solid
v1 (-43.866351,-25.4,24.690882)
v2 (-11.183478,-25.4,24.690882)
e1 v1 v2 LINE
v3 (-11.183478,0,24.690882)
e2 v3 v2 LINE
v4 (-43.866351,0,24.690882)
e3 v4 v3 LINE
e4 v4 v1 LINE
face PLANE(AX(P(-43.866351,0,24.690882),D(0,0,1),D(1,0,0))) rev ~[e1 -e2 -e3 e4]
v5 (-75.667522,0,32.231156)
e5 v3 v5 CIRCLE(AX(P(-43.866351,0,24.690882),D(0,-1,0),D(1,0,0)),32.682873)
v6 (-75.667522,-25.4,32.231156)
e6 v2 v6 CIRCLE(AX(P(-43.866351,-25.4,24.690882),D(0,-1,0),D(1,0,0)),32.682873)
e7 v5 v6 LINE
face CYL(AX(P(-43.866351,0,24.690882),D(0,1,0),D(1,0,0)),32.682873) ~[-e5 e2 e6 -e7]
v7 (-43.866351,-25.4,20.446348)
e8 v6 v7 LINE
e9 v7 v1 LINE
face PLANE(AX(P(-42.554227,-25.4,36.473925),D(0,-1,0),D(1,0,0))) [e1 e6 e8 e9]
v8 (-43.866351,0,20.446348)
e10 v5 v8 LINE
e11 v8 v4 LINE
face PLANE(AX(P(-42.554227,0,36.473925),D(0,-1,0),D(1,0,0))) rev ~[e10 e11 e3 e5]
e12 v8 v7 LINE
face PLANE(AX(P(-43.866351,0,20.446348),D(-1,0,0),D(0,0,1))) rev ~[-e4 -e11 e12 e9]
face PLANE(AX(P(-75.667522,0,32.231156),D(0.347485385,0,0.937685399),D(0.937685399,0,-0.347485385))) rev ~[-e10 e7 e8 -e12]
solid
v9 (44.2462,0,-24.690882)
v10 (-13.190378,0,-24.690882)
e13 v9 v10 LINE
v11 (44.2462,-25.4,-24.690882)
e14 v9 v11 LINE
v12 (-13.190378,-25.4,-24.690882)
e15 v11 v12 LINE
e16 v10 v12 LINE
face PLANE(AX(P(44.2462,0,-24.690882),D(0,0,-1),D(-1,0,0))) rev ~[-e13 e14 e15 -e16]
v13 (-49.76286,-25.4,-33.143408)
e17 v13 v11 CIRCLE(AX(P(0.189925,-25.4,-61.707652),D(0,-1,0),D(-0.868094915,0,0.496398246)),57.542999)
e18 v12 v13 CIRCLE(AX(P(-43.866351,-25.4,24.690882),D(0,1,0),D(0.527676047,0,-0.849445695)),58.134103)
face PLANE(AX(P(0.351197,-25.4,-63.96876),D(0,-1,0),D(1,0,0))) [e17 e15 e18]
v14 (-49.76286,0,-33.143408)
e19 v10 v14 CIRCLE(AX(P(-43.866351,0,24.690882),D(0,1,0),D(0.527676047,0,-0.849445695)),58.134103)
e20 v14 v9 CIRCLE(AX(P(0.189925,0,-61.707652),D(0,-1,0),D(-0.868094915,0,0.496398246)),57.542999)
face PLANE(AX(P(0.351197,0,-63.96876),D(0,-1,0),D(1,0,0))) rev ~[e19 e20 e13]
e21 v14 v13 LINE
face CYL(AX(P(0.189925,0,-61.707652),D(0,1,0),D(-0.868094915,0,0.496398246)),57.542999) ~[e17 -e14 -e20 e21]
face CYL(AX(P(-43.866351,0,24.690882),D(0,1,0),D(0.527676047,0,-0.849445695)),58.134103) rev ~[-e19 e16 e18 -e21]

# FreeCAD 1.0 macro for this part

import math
import FreeCAD as App
import Part
import Sketcher
from FreeCAD import Vector
Q = App.Units.Quantity

doc = App.newDocument("Part")
body = doc.addObject("PartDesign::Body", "Body")

sketch1 = body.newObject("Sketcher::SketchObject", "Sketch")
sketch1.AttachmentSupport = (doc.getObject("XZ_Plane"), [""])
sketch1.MapMode = "FlatFace"
sketch1.addGeometry([
    Part.LineSegment(Vector(44, -25, 0), Vector(-13, -25, 0)),
    Part.ArcOfCircle(Part.Circle(Vector(-44, 25, 0), Vector(0, 0, 1), 58), math.radians(-96), math.radians(-58)),
    Part.ArcOfCircle(Part.Circle(Vector(0, -62, 0), Vector(0, 0, 1), 58), math.radians(150), math.radians(400)),
], False)
sketch1.addConstraint([
    Sketcher.Constraint("Coincident", 0, 2, 1, 2),
    Sketcher.Constraint("Coincident", 1, 1, 2, 1),
    Sketcher.Constraint("Coincident", 2, 2, 0, 1),
    Sketcher.Constraint("Horizontal", 0),
    Sketcher.Constraint("Radius", 2, 57.542999),
    Sketcher.Constraint("Radius", 1, 58.134103),
    Sketcher.Constraint("DistanceX", 0, 2, 0, 1, 57.436578),
    Sketcher.Constraint("DistanceX", -1, 1, 2, 2, 44.2462),
    Sketcher.Constraint("DistanceX", 1, 3, -1, 1, 43.866351),
    Sketcher.Constraint("DistanceY", -1, 1, 1, 3, 24.690882),
    Sketcher.Constraint("DistanceY", 2, 3, -1, 1, 61.707652),
])
pad1 = body.newObject("PartDesign::Pad", "Pad")
pad1.Profile = sketch1
pad1.Length = Q("1 in")
body2 = doc.addObject("PartDesign::Body", "Body001")

sketch2 = body2.newObject("Sketcher::SketchObject", "Sketch001")
sketch2.AttachmentSupport = (doc.getObject("XZ_Plane001"), [""])
sketch2.MapMode = "FlatFace"
sketch2.addGeometry([
    Part.LineSegment(Vector(-75.7, 32.2, 0), Vector(-43.9, 20.4, 0)),
    Part.LineSegment(Vector(-43.9, 20.4, 0), Vector(-43.9, 24.7, 0)),
    Part.LineSegment(Vector(-43.9, 24.7, 0), Vector(-11.2, 24.7, 0)),
    Part.ArcOfCircle(Part.Circle(Vector(-43.9, 24.7, 0), Vector(0, 0, 1), 32.7), math.radians(0), math.radians(167)),
], False)
sketch2.addConstraint([
    Sketcher.Constraint("Coincident", 0, 2, 1, 1),
    Sketcher.Constraint("Coincident", 1, 2, 2, 1),
    Sketcher.Constraint("Coincident", 2, 2, 3, 1),
    Sketcher.Constraint("Coincident", 3, 2, 0, 1),
    Sketcher.Constraint("Vertical", 1),
    Sketcher.Constraint("Horizontal", 2),
    Sketcher.Constraint("Coincident", 1, 2, 3, 3),
    Sketcher.Constraint("Radius", 3, 32.682873),
    Sketcher.Constraint("DistanceY", 1, 1, 1, 2, 4.244533),
    Sketcher.Constraint("DistanceX", 3, 3, -1, 1, 43.866351),
    Sketcher.Constraint("DistanceY", -1, 1, 3, 3, 24.690882),
    Sketcher.Constraint("DistanceX", 3, 2, 3, 3, 31.801171),
])
pad2 = body2.newObject("PartDesign::Pad", "Pad001")
pad2.Profile = sketch2
pad2.Length = Q("1 in")

doc.recompute()
